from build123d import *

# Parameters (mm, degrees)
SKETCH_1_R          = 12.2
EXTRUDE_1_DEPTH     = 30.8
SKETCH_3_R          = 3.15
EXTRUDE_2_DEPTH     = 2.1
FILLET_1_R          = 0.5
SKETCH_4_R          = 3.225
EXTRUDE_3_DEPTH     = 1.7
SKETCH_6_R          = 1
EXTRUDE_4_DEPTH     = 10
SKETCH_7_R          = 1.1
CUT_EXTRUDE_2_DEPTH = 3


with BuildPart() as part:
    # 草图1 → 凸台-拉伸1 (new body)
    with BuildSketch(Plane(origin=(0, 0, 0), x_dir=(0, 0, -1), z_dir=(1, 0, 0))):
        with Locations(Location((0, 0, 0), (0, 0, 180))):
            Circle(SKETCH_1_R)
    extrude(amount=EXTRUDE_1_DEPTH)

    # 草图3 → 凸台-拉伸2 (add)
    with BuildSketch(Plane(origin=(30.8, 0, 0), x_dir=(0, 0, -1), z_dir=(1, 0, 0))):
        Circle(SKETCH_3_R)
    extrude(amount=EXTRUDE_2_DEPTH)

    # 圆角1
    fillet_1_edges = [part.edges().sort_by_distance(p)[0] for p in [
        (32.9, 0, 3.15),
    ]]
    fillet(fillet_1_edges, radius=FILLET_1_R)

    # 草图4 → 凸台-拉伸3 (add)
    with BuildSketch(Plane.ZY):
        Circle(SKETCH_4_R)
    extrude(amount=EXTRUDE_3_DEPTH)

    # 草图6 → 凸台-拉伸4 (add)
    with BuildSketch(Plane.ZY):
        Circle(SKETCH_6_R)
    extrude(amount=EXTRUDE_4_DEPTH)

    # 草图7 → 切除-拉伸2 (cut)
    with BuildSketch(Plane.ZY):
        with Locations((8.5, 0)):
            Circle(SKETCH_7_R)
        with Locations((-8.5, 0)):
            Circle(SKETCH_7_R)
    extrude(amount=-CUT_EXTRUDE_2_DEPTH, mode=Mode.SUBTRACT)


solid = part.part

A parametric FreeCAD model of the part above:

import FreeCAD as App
import Part
import Sketcher
from FreeCAD import Vector
Q = App.Units.Quantity


def edges_at(feature, points):
    """Names of the edges that pass closest to the given points."""
    edges = feature.Shape.Edges
    near = lambda p: min(range(len(edges)), key=lambda i: edges[i].distToShape(Part.Vertex(*p))[0])
    return sorted({f"Edge{near(p) + 1}" for p in points})

doc = App.newDocument("Part")
body = doc.addObject("PartDesign::Body", "Body")

sketch1 = doc.addObject("Sketcher::SketchObject", "Sketch")
body.addObject(sketch1)
sketch1.AttachmentSupport = (doc.YZ_Plane, [""])
sketch1.MapMode = "FlatFace"
sketch1.addGeometry(Part.Circle(Vector(0, 0, 0), Vector(0, 0, 1), 12.2), False)
sketch1.addConstraint([
    Sketcher.Constraint("Coincident", 0, 3, -1, 1),
    Sketcher.Constraint("Diameter", 0, Q("24.4 mm")),
])
pad1 = doc.addObject("PartDesign::Pad", "Pad")
body.addObject(pad1)
pad1.Profile = sketch1
pad1.Length = 30.8

sketch2 = doc.addObject("Sketcher::SketchObject", "Sketch001")
body.addObject(sketch2)
sketch2.AttachmentSupport = (doc.YZ_Plane, [""])
sketch2.MapMode = "FlatFace"
sketch2.AttachmentOffset = App.Placement(Vector(0, 0, 30.8), App.Rotation())
sketch2.addGeometry(Part.Circle(Vector(0, 0, 0), Vector(0, 0, 1), 3.15), False)
sketch2.addConstraint([
    Sketcher.Constraint("Coincident", 0, 3, -1, 1),
    Sketcher.Constraint("Diameter", 0, Q("6.3 mm")),
])
pad2 = doc.addObject("PartDesign::Pad", "Pad001")
body.addObject(pad2)
pad2.Profile = sketch2
pad2.Length = 2.1
doc.recompute()

fillet = doc.addObject("PartDesign::Fillet", "Fillet")
body.addObject(fillet)
fillet.Base = (pad2, edges_at(pad2, [(32.9, 0, 3.15)]))
fillet.Radius = 0.5

sketch3 = doc.addObject("Sketcher::SketchObject", "Sketch002")
body.addObject(sketch3)
sketch3.AttachmentSupport = (doc.YZ_Plane, [""])
sketch3.MapMode = "FlatFace"
sketch3.addGeometry(Part.Circle(Vector(0, 0, 0), Vector(0, 0, 1), 3.225), False)
sketch3.addConstraint([
    Sketcher.Constraint("Coincident", 0, 3, -1, 1),
    Sketcher.Constraint("Diameter", 0, Q("6.45 mm")),
])
pad3 = doc.addObject("PartDesign::Pad", "Pad002")
body.addObject(pad3)
pad3.Profile = sketch3
pad3.Length = 1.7
pad3.Reversed = True

sketch4 = doc.addObject("Sketcher::SketchObject", "Sketch003")
body.addObject(sketch4)
sketch4.AttachmentSupport = (doc.YZ_Plane, [""])
sketch4.MapMode = "FlatFace"
sketch4.addGeometry(Part.Circle(Vector(0, 0, 0), Vector(0, 0, 1), 1), False)
sketch4.addConstraint([
    Sketcher.Constraint("Coincident", 0, 3, -1, 1),
    Sketcher.Constraint("Diameter", 0, Q("2 mm")),
])
pad4 = doc.addObject("PartDesign::Pad", "Pad003")
body.addObject(pad4)
pad4.Profile = sketch4
pad4.Length = 10
pad4.Reversed = True

sketch5 = doc.addObject("Sketcher::SketchObject", "Sketch004")
body.addObject(sketch5)
sketch5.AttachmentSupport = (doc.YZ_Plane, [""])
sketch5.MapMode = "FlatFace"
sketch5.addGeometry([
    Part.Circle(Vector(0, 8.5, 0), Vector(0, 0, 1), 1.1),
    Part.Circle(Vector(0, -8.5, 0), Vector(0, 0, 1), 1.1),
], False)
sketch5.addConstraint([
    Sketcher.Constraint("Equal", 0, 1),
    Sketcher.Constraint("Symmetric", 0, 3, 1, 3, -1, 1),
    Sketcher.Constraint("PointOnObject", 0, 3, -2),
    Sketcher.Constraint("Diameter", 0, Q("2.2 mm")),
    Sketcher.Constraint("DistanceY", 1, 3, 0, 3, Q("17 mm")),
])
pocket1 = doc.addObject("PartDesign::Pocket", "Pocket")
body.addObject(pocket1)
pocket1.Profile = sketch5
pocket1.Length = 3
pocket1.Reversed = True

doc.recompute()
